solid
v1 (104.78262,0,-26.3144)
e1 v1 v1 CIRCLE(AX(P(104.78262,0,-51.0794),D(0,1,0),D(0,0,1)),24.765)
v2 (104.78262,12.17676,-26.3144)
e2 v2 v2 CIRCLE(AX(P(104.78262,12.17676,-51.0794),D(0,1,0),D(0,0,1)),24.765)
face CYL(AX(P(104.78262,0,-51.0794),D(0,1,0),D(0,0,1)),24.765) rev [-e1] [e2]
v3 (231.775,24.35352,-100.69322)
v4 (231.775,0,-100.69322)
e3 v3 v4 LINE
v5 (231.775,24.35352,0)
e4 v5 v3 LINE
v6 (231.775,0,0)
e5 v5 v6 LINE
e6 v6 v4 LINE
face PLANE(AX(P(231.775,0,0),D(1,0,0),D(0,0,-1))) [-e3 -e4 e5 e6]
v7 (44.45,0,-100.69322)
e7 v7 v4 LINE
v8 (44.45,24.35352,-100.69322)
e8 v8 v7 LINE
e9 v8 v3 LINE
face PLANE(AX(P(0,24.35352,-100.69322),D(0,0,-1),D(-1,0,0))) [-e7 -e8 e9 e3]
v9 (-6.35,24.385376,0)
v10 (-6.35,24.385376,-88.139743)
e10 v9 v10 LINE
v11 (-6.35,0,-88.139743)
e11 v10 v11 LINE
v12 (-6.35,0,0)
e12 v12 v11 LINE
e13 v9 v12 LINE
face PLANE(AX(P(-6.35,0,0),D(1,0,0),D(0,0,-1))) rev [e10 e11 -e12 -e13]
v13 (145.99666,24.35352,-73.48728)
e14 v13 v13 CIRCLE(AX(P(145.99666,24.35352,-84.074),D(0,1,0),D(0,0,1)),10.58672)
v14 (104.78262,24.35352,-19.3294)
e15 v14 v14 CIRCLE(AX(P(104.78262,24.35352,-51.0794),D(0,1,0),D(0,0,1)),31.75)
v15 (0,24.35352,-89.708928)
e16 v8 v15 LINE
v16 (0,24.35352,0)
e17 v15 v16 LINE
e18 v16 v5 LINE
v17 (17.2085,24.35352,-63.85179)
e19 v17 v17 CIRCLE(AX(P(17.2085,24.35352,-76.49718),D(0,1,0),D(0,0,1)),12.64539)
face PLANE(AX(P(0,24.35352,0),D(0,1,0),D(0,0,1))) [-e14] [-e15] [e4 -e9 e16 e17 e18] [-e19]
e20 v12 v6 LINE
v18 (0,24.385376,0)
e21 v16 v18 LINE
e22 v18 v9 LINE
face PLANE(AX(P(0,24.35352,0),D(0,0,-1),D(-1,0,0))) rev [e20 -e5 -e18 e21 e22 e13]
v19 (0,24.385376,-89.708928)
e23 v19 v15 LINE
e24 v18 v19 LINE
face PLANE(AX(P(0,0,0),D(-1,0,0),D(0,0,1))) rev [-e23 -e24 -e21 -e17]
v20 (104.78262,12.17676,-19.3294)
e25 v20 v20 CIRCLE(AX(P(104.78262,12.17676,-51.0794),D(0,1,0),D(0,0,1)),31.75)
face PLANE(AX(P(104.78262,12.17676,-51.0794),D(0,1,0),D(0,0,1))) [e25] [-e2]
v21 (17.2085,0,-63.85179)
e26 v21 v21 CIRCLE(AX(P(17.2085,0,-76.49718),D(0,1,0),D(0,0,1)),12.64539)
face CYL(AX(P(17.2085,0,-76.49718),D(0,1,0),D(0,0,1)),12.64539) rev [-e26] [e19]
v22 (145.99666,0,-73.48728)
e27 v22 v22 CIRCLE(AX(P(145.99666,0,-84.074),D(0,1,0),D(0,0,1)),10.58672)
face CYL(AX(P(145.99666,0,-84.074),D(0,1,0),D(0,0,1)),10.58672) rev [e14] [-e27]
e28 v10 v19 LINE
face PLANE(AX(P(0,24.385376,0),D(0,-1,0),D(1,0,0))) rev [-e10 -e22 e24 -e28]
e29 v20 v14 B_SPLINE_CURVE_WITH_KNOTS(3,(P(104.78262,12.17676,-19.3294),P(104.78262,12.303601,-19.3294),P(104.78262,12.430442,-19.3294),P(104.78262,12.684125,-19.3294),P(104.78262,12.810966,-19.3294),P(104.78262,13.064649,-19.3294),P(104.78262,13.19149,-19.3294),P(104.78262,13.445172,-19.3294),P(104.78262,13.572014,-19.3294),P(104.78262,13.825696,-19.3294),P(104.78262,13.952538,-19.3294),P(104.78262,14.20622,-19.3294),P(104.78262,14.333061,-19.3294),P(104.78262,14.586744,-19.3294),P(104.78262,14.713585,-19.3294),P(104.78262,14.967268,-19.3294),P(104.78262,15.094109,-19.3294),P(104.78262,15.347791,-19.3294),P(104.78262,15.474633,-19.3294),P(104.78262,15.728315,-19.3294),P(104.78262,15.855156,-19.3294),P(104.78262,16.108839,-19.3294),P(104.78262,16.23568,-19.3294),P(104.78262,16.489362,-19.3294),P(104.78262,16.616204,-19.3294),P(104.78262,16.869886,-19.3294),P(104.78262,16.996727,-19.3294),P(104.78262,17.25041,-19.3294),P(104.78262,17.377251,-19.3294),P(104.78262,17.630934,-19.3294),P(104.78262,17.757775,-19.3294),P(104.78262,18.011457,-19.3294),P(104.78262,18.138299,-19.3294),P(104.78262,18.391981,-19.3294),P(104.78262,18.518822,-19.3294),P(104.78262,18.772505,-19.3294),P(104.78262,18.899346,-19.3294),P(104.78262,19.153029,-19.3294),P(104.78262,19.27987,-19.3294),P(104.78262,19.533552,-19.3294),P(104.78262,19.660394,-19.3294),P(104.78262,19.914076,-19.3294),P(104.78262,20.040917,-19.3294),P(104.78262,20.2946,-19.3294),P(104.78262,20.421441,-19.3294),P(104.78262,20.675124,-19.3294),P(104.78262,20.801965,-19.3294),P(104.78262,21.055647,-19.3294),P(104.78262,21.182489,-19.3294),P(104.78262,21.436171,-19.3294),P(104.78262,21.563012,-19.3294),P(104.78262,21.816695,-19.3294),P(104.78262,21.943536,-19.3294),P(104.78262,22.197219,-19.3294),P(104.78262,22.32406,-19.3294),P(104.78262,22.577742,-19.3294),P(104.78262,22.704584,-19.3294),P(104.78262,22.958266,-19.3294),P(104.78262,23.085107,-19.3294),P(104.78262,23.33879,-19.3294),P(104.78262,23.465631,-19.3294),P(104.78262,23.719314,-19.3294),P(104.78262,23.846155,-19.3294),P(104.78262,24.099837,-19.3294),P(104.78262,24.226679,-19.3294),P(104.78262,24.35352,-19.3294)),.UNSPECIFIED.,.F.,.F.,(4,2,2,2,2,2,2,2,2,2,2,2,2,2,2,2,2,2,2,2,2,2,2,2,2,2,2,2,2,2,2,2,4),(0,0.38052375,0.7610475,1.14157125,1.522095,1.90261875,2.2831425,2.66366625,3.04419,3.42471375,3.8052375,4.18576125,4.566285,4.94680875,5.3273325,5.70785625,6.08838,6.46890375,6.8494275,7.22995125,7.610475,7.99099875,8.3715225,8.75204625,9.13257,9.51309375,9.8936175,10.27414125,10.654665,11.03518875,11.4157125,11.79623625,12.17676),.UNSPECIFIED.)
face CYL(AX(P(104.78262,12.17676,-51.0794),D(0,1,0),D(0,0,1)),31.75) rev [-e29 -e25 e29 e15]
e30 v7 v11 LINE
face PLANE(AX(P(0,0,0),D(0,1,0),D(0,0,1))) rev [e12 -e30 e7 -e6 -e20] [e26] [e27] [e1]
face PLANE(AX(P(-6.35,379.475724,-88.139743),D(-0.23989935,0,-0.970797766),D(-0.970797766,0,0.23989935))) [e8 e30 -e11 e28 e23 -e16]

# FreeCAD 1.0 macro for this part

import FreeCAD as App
import Part
import Sketcher
from FreeCAD import Vector
Q = App.Units.Quantity


def add_polygon(sketch, points):
    """Adds a closed chain of lines whose ends are joined by coincident constraints."""
    first, n = sketch.GeometryCount, len(points)
    for a, b in zip(points, points[1:] + points[:1]):
        sketch.addGeometry(Part.LineSegment(App.Vector(*a, 0), App.Vector(*b, 0)), False)
    for i in range(n):
        sketch.addConstraint(Sketcher.Constraint("Coincident", first + i, 2, first + (i + 1) % n, 1))

doc = App.newDocument("Part")
body = doc.addObject("PartDesign::Body", "Body")

sketch1 = body.newObject("Sketcher::SketchObject", "Sketch")
sketch1.AttachmentSupport = (doc.getObject("XZ_Plane"), [""])
sketch1.MapMode = "FlatFace"
add_polygon(sketch1, [(0, -100.69322), (0, 0), (225.425, 0), (225.425, -100.69322)])
sketch1.addConstraint([
    Sketcher.Constraint("Vertical", 0),
    Sketcher.Constraint("Horizontal", 1),
    Sketcher.Constraint("Vertical", 2),
    Sketcher.Constraint("Horizontal", 3),
    Sketcher.Constraint("Coincident", 0, 2, -1, 1),
    Sketcher.Constraint("DistanceX", 1, 1, 1, 2, Q("8.875 in")),
    Sketcher.Constraint("DistanceY", 0, 1, 0, 2, Q("3.9643 in")),
])
pad1 = body.newObject("PartDesign::Pad", "Pad")
pad1.Profile = sketch1
pad1.Length = Q("0.9588 in")
pad1.Reversed = True

sketch2 = body.newObject("Sketcher::SketchObject", "Sketch001")
sketch2.AttachmentSupport = (doc.getObject("XY_Plane"), [""])
sketch2.MapMode = "FlatFace"
sketch2.AttachmentOffset = App.Placement(Vector(0, 0, -3.9643 * 25.4), App.Rotation())
add_polygon(sketch2, [(-6.35, 24.385376), (-6.35, 0), (0, 0), (0, 24.385376)])
sketch2.addConstraint([
    Sketcher.Constraint("Vertical", 0),
    Sketcher.Constraint("Horizontal", 1),
    Sketcher.Constraint("Vertical", 2),
    Sketcher.Constraint("Horizontal", 3),
    Sketcher.Constraint("Coincident", 1, 2, -1, 1),
    Sketcher.Constraint("DistanceX", 1, 1, 1, 2, Q("0.25 in")),
    Sketcher.Constraint("DistanceY", 0, 2, 0, 1, 24.385376),
])
pad2 = body.newObject("PartDesign::Pad", "Pad001")
pad2.Profile = sketch2
pad2.Length = Q("3.9643 in")

sketch3 = body.newObject("Sketcher::SketchObject", "Sketch002")
sketch3.AttachmentSupport = (doc.getObject("XY_Plane"), [""])
sketch3.MapMode = "FlatFace"
sketch3.AttachmentOffset = App.Placement(Vector(0, 0, -3.9643 * 25.4), App.Rotation())
add_polygon(sketch3, [(231.775, 24.35352), (231.775, 0), (225.425, 0), (225.425, 24.35352)])
sketch3.addConstraint([
    Sketcher.Constraint("Vertical", 0),
    Sketcher.Constraint("Horizontal", 1),
    Sketcher.Constraint("Vertical", 2),
    Sketcher.Constraint("Horizontal", 3),
    Sketcher.Constraint("PointOnObject", 0, 2, -1),
    Sketcher.Constraint("DistanceX", 1, 2, 1, 1, Q("0.25 in")),
    Sketcher.Constraint("DistanceY", 0, 2, 0, 1, Q("0.9588 in")),
    Sketcher.Constraint("DistanceX", -1, 1, 0, 2, Q("9.125 in")),
])
pad3 = body.newObject("PartDesign::Pad", "Pad002")
pad3.Profile = sketch3
pad3.Length = Q("3.9643 in")

sketch4 = body.newObject("Sketcher::SketchObject", "Sketch003")
sketch4.AttachmentSupport = (doc.getObject("XZ_Plane"), [""])
sketch4.MapMode = "FlatFace"
sketch4.AttachmentOffset = App.Placement(Vector(0, 0, -0.9588 * 25.4), App.Rotation())
sketch4.addGeometry([
    Part.Circle(Vector(17.2085, -76.49718, 0), Vector(0, 0, 1), 12.64539),
    Part.Circle(Vector(145.99666, -84.074, 0), Vector(0, 0, 1), 10.58672),
], False)
sketch4.addConstraint([
    Sketcher.Constraint("Diameter", 0, Q("0.9957 in")),
    Sketcher.Constraint("Diameter", 1, Q("0.8336 in")),
    Sketcher.Constraint("DistanceY", 1, 3, -1, 1, Q("3.31 in")),
    Sketcher.Constraint("DistanceX", -1, 1, 0, 3, Q("0.6775 in")),
    Sketcher.Constraint("DistanceY", 0, 3, -1, 1, Q("3.0117 in")),
    Sketcher.Constraint("DistanceX", -1, 1, 1, 3, Q("5.7479 in")),
])
pocket1 = body.newObject("PartDesign::Pocket", "Pocket")
pocket1.Profile = sketch4
pocket1.Type = "ThroughAll"
pocket1.Reversed = True

sketch5 = body.newObject("Sketcher::SketchObject", "Sketch004")
sketch5.AttachmentSupport = (doc.getObject("XZ_Plane"), [""])
sketch5.MapMode = "FlatFace"
sketch5.AttachmentOffset = App.Placement(Vector(0, 0, -24.385376), App.Rotation())
add_polygon(sketch5, [(-509.055541, 36.086678), (-6.35, -88.139743), (44.45, -100.69322), (547.155541, -224.919642), (298.702698, -1230.330724), (-757.508385, -969.324404)])
sketch5.addConstraint([
    Sketcher.Constraint("Parallel", 0, 1),
    Sketcher.Constraint("Parallel", 1, 2),
    Sketcher.Constraint("Perpendicular", 2, 3),
    Sketcher.Constraint("Perpendicular", 3, 4),
    Sketcher.Constraint("Perpendicular", 4, 5),
    Sketcher.Constraint("Equal", 0, 2),
    Sketcher.Constraint("DistanceX", 0, 2, 1, 2, Q("2 in")),
    Sketcher.Constraint("DistanceX", 0, 2, -1, 1, Q("0.25 in")),
    Sketcher.Constraint("DistanceY", 1, 2, -1, 1, Q("3.9643 in")),
    Sketcher.Constraint("DistanceY", 2, 2, 0, 2, 136.779898),
    Sketcher.Constraint("Distance", 3, 1035.654508),
    Sketcher.Constraint("DistanceX", -1, 1, 2, 2, 547.155541),
])
pocket2 = body.newObject("PartDesign::Pocket", "Pocket001")
pocket2.Profile = sketch5
pocket2.Type = "ThroughAll"
pocket2.Midplane = True

sketch6 = body.newObject("Sketcher::SketchObject", "Sketch005")
sketch6.AttachmentSupport = (doc.getObject("XZ_Plane"), [""])
sketch6.MapMode = "FlatFace"
sketch6.AttachmentOffset = App.Placement(Vector(0, 0, -0.9588 * 25.4), App.Rotation())
sketch6.addGeometry([
    Part.Circle(Vector(104.78262, -51.0794, 0), Vector(0, 0, 1), 31.75),
    Part.Circle(Vector(104.78262, -51.0794, 0), Vector(0, 0, 1), 24.765),
], False)
sketch6.addConstraint([
    Sketcher.Constraint("Coincident", 1, 3, 0, 3),
    Sketcher.Constraint("Diameter", 0, Q("2.5 in")),
    Sketcher.Constraint("Diameter", 1, Q("1.95 in")),
    Sketcher.Constraint("DistanceY", 0, 3, -1, 1, Q("2.011 in")),
    Sketcher.Constraint("DistanceX", -1, 1, 0, 3, Q("4.1253 in")),
])
pocket3 = body.newObject("PartDesign::Pocket", "Pocket002")
pocket3.Profile = sketch6
pocket3.Length = Q("0.4794 in")
pocket3.Reversed = True

sketch7 = body.newObject("Sketcher::SketchObject", "Sketch006")
sketch7.AttachmentSupport = (doc.getObject("XZ_Plane"), [""])
sketch7.MapMode = "FlatFace"
sketch7.AttachmentOffset = App.Placement(Vector(0, 0, -0.9588 * 25.4), App.Rotation())
sketch7.addGeometry(Part.Circle(Vector(104.78262, -51.0794, 0), Vector(0, 0, 1), 24.765), False)
sketch7.addConstraint([
    Sketcher.Constraint("Diameter", 0, Q("1.95 in")),
    Sketcher.Constraint("DistanceY", 0, 3, -1, 1, Q("2.011 in")),
    Sketcher.Constraint("DistanceX", -1, 1, 0, 3, Q("4.1253 in")),
])
pocket4 = body.newObject("PartDesign::Pocket", "Pocket003")
pocket4.Profile = sketch7
pocket4.Type = "ThroughAll"
pocket4.Reversed = True

doc.recompute()
